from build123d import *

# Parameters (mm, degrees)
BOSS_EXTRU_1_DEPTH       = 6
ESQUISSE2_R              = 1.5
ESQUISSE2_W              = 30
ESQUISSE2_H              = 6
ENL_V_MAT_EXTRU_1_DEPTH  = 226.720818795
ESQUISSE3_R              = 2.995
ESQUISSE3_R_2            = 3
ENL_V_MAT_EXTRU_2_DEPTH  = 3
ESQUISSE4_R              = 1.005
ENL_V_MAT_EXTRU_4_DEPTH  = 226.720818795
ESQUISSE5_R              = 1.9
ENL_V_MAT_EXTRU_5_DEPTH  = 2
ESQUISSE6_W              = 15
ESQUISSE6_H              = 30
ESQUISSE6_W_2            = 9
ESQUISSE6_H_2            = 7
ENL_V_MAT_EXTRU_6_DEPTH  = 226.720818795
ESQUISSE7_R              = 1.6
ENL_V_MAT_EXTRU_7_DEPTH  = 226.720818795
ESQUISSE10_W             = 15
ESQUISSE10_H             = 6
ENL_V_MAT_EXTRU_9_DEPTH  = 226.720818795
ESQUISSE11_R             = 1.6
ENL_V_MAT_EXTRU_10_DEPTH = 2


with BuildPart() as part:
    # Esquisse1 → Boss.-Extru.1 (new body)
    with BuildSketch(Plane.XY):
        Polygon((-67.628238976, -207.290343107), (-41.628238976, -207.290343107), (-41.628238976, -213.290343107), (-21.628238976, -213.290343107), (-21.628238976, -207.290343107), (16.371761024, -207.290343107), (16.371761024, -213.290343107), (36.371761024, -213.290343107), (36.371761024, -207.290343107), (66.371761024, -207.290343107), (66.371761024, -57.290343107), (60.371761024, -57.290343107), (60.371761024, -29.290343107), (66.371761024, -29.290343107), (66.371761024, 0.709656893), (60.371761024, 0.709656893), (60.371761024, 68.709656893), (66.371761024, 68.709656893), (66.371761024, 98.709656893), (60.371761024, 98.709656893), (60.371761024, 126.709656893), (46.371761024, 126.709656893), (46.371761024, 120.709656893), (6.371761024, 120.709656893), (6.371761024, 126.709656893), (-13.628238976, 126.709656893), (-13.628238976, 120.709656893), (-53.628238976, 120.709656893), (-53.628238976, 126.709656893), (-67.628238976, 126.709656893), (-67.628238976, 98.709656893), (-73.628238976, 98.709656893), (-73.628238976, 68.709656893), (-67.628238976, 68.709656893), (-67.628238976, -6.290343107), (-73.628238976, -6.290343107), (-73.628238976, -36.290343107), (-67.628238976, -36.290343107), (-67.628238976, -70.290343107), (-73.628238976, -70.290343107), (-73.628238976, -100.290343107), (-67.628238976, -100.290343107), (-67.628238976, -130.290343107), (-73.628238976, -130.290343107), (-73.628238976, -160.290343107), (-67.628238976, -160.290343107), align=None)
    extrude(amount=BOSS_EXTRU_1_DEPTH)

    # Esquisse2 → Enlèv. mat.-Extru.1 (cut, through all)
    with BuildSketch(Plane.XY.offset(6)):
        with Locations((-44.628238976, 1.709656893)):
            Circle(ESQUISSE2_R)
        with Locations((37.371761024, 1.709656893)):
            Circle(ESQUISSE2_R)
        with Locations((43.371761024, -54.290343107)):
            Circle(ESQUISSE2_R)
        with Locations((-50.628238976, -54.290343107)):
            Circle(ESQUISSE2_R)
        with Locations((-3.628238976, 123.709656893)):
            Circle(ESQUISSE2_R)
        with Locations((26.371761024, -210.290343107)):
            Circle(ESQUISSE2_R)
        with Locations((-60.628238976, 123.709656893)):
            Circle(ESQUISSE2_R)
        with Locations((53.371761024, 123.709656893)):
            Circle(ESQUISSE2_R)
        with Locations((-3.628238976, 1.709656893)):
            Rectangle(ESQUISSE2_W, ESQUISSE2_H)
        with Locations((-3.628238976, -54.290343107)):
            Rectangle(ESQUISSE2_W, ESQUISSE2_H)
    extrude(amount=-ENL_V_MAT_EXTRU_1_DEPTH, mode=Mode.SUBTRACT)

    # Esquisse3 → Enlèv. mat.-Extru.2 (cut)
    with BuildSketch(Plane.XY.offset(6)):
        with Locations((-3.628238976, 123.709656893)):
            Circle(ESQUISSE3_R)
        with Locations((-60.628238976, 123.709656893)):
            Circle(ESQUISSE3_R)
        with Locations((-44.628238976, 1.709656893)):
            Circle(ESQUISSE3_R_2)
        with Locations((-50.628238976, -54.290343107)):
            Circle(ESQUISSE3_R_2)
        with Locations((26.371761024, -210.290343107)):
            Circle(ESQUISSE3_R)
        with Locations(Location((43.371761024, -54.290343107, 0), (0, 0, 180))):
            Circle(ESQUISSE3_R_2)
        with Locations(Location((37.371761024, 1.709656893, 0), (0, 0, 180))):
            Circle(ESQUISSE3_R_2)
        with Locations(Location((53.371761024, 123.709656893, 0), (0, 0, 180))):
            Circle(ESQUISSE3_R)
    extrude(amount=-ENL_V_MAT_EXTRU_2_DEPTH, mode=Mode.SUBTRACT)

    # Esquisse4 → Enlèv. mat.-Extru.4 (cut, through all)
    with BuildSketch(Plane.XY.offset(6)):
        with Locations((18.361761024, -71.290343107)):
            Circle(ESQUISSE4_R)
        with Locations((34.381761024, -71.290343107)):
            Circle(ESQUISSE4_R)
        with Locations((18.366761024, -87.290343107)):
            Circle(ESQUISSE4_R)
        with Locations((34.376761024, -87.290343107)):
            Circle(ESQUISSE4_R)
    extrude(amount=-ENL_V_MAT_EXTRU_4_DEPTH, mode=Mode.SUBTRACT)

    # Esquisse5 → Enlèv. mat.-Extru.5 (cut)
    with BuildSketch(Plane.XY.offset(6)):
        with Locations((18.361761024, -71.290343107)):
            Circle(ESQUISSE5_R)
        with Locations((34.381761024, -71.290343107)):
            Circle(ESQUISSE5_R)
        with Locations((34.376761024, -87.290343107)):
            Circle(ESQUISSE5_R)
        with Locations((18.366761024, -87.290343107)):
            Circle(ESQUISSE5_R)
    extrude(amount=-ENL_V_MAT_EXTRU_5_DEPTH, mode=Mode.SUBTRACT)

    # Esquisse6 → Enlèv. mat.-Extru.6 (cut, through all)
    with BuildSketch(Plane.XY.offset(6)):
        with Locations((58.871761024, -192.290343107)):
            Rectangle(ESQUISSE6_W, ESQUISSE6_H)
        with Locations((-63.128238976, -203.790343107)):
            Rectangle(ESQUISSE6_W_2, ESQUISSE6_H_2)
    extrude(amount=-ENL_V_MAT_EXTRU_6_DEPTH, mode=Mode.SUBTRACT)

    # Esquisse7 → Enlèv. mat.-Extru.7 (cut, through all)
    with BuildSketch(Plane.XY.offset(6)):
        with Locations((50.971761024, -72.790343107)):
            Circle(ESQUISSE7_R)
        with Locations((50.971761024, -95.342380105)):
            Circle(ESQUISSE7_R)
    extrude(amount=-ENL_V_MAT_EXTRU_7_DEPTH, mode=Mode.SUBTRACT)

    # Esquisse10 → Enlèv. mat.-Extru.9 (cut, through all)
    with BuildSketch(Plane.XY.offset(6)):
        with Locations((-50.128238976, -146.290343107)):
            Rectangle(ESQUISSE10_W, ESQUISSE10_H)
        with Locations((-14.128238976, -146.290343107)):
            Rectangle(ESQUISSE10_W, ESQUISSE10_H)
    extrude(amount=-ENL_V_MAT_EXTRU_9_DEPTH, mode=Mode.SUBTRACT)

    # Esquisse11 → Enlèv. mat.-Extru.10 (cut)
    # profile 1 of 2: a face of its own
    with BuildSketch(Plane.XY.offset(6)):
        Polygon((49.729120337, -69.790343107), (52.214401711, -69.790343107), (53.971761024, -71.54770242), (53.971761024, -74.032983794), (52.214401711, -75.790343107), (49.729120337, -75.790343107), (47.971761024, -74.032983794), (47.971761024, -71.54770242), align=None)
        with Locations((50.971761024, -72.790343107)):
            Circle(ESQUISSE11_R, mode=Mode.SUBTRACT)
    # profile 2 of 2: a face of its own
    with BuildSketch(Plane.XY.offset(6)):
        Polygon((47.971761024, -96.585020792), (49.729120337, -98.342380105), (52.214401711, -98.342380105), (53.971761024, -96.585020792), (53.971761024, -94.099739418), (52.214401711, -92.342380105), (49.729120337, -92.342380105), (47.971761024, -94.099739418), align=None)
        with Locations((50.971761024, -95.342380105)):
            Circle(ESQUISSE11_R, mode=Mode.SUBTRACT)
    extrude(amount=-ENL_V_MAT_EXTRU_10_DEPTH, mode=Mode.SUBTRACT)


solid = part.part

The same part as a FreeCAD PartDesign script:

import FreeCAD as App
import Part
import Sketcher

V = App.Vector
Q = App.Units.Quantity

doc = App.newDocument("Part")
body = doc.addObject("PartDesign::Body", "Body")

# Sketch on XY plane
sketch1 = doc.addObject("Sketcher::SketchObject", "Sketch")
body.addObject(sketch1)
sketch1.AttachmentSupport = (doc.XY_Plane, [""])
sketch1.MapMode = "FlatFace"
sketch1.addGeometry([
    Part.LineSegment(V(-68, -207, 0), V(-42, -207, 0)),  # 0
    Part.LineSegment(V(-42, -207, 0), V(-42, -213, 0)),  # 1
    Part.LineSegment(V(-42, -213, 0), V(-22, -213, 0)),  # 2
    Part.LineSegment(V(-22, -213, 0), V(-22, -207, 0)),  # 3
    Part.LineSegment(V(-22, -207, 0), V(16, -207, 0)),  # 4
    Part.LineSegment(V(16, -207, 0), V(16, -213, 0)),  # 5
    Part.LineSegment(V(16, -213, 0), V(36, -213, 0)),  # 6
    Part.LineSegment(V(36, -213, 0), V(36, -207, 0)),  # 7
    Part.LineSegment(V(36, -207, 0), V(66, -207, 0)),  # 8
    Part.LineSegment(V(66, -207, 0), V(66, -57, 0)),  # 9
    Part.LineSegment(V(66, -57, 0), V(60, -57, 0)),  # 10
    Part.LineSegment(V(60, -57, 0), V(60, -29, 0)),  # 11
    Part.LineSegment(V(60, -29, 0), V(66, -29, 0)),  # 12
    Part.LineSegment(V(66, -29, 0), V(66, 1, 0)),  # 13
    Part.LineSegment(V(66, 1, 0), V(60, 1, 0)),  # 14
    Part.LineSegment(V(60, 1, 0), V(60, 69, 0)),  # 15
    Part.LineSegment(V(60, 69, 0), V(66, 69, 0)),  # 16
    Part.LineSegment(V(66, 69, 0), V(66, 99, 0)),  # 17
    Part.LineSegment(V(66, 99, 0), V(60, 99, 0)),  # 18
    Part.LineSegment(V(60, 99, 0), V(60, 127, 0)),  # 19
    Part.LineSegment(V(60, 127, 0), V(46, 127, 0)),  # 20
    Part.LineSegment(V(46, 127, 0), V(46, 121, 0)),  # 21
    Part.LineSegment(V(46, 121, 0), V(6, 121, 0)),  # 22
    Part.LineSegment(V(6, 121, 0), V(6, 127, 0)),  # 23
    Part.LineSegment(V(6, 127, 0), V(-14, 127, 0)),  # 24
    Part.LineSegment(V(-14, 127, 0), V(-14, 121, 0)),  # 25
    Part.LineSegment(V(-14, 121, 0), V(-54, 121, 0)),  # 26
    Part.LineSegment(V(-54, 121, 0), V(-54, 127, 0)),  # 27
    Part.LineSegment(V(-54, 127, 0), V(-68, 127, 0)),  # 28
    Part.LineSegment(V(-68, 127, 0), V(-68, 99, 0)),  # 29
    Part.LineSegment(V(-68, 99, 0), V(-74, 99, 0)),  # 30
    Part.LineSegment(V(-74, 99, 0), V(-74, 69, 0)),  # 31
    Part.LineSegment(V(-74, 69, 0), V(-68, 69, 0)),  # 32
    Part.LineSegment(V(-68, 69, 0), V(-68, -6, 0)),  # 33
    Part.LineSegment(V(-68, -6, 0), V(-74, -6, 0)),  # 34
    Part.LineSegment(V(-74, -6, 0), V(-74, -36, 0)),  # 35
    Part.LineSegment(V(-74, -36, 0), V(-68, -36, 0)),  # 36
    Part.LineSegment(V(-68, -36, 0), V(-68, -70, 0)),  # 37
    Part.LineSegment(V(-68, -70, 0), V(-74, -70, 0)),  # 38
    Part.LineSegment(V(-74, -70, 0), V(-74, -100, 0)),  # 39
    Part.LineSegment(V(-74, -100, 0), V(-68, -100, 0)),  # 40
    Part.LineSegment(V(-68, -100, 0), V(-68, -130, 0)),  # 41
    Part.LineSegment(V(-68, -130, 0), V(-74, -130, 0)),  # 42
    Part.LineSegment(V(-74, -130, 0), V(-74, -160, 0)),  # 43
    Part.LineSegment(V(-74, -160, 0), V(-68, -160, 0)),  # 44
    Part.LineSegment(V(-68, -160, 0), V(-68, -207, 0)),  # 45
], False)
sketch1.addConstraint([
    Sketcher.Constraint("Coincident", 0, 2, 1, 1),
    Sketcher.Constraint("Coincident", 1, 2, 2, 1),
    Sketcher.Constraint("Coincident", 2, 2, 3, 1),
    Sketcher.Constraint("Coincident", 3, 2, 4, 1),
    Sketcher.Constraint("Coincident", 4, 2, 5, 1),
    Sketcher.Constraint("Coincident", 5, 2, 6, 1),
    Sketcher.Constraint("Coincident", 6, 2, 7, 1),
    Sketcher.Constraint("Coincident", 7, 2, 8, 1),
    Sketcher.Constraint("Coincident", 8, 2, 9, 1),
    Sketcher.Constraint("Coincident", 9, 2, 10, 1),
    Sketcher.Constraint("Coincident", 10, 2, 11, 1),
    Sketcher.Constraint("Coincident", 11, 2, 12, 1),
    Sketcher.Constraint("Coincident", 12, 2, 13, 1),
    Sketcher.Constraint("Coincident", 13, 2, 14, 1),
    Sketcher.Constraint("Coincident", 14, 2, 15, 1),
    Sketcher.Constraint("Coincident", 15, 2, 16, 1),
    Sketcher.Constraint("Coincident", 16, 2, 17, 1),
    Sketcher.Constraint("Coincident", 17, 2, 18, 1),
    Sketcher.Constraint("Coincident", 18, 2, 19, 1),
    Sketcher.Constraint("Coincident", 19, 2, 20, 1),
    Sketcher.Constraint("Coincident", 20, 2, 21, 1),
    Sketcher.Constraint("Coincident", 21, 2, 22, 1),
    Sketcher.Constraint("Coincident", 22, 2, 23, 1),
    Sketcher.Constraint("Coincident", 23, 2, 24, 1),
    Sketcher.Constraint("Coincident", 24, 2, 25, 1),
    Sketcher.Constraint("Coincident", 25, 2, 26, 1),
    Sketcher.Constraint("Coincident", 26, 2, 27, 1),
    Sketcher.Constraint("Coincident", 27, 2, 28, 1),
    Sketcher.Constraint("Coincident", 28, 2, 29, 1),
    Sketcher.Constraint("Coincident", 29, 2, 30, 1),
    Sketcher.Constraint("Coincident", 30, 2, 31, 1),
    Sketcher.Constraint("Coincident", 31, 2, 32, 1),
    Sketcher.Constraint("Coincident", 32, 2, 33, 1),
    Sketcher.Constraint("Coincident", 33, 2, 34, 1),
    Sketcher.Constraint("Coincident", 34, 2, 35, 1),
    Sketcher.Constraint("Coincident", 35, 2, 36, 1),
    Sketcher.Constraint("Coincident", 36, 2, 37, 1),
    Sketcher.Constraint("Coincident", 37, 2, 38, 1),
    Sketcher.Constraint("Coincident", 38, 2, 39, 1),
    Sketcher.Constraint("Coincident", 39, 2, 40, 1),
    Sketcher.Constraint("Coincident", 40, 2, 41, 1),
    Sketcher.Constraint("Coincident", 41, 2, 42, 1),
    Sketcher.Constraint("Coincident", 42, 2, 43, 1),
    Sketcher.Constraint("Coincident", 43, 2, 44, 1),
    Sketcher.Constraint("Coincident", 44, 2, 45, 1),
    Sketcher.Constraint("Coincident", 45, 2, 0, 1),
    Sketcher.Constraint("Horizontal", 0),
    Sketcher.Constraint("Vertical", 1),
    Sketcher.Constraint("Horizontal", 2),
    Sketcher.Constraint("Vertical", 3),
    Sketcher.Constraint("Horizontal", 4),
    Sketcher.Constraint("Vertical", 5),
    Sketcher.Constraint("Horizontal", 6),
    Sketcher.Constraint("Vertical", 7),
    Sketcher.Constraint("Horizontal", 8),
    Sketcher.Constraint("Vertical", 9),
    Sketcher.Constraint("Horizontal", 10),
    Sketcher.Constraint("Vertical", 11),
    Sketcher.Constraint("Horizontal", 12),
    Sketcher.Constraint("Vertical", 13),
    Sketcher.Constraint("Horizontal", 14),
    Sketcher.Constraint("Vertical", 15),
    Sketcher.Constraint("Horizontal", 16),
    Sketcher.Constraint("Vertical", 17),
    Sketcher.Constraint("Horizontal", 18),
    Sketcher.Constraint("Vertical", 19),
    Sketcher.Constraint("Horizontal", 20),
    Sketcher.Constraint("Vertical", 21),
    Sketcher.Constraint("Horizontal", 22),
    Sketcher.Constraint("Vertical", 23),
    Sketcher.Constraint("Horizontal", 24),
    Sketcher.Constraint("Vertical", 25),
    Sketcher.Constraint("Horizontal", 26),
    Sketcher.Constraint("Vertical", 27),
    Sketcher.Constraint("Horizontal", 28),
    Sketcher.Constraint("Vertical", 29),
    Sketcher.Constraint("Horizontal", 30),
    Sketcher.Constraint("Vertical", 31),
    Sketcher.Constraint("Horizontal", 32),
    Sketcher.Constraint("Vertical", 33),
    Sketcher.Constraint("Horizontal", 34),
    Sketcher.Constraint("Vertical", 35),
    Sketcher.Constraint("Horizontal", 36),
    Sketcher.Constraint("Vertical", 37),
    Sketcher.Constraint("Horizontal", 38),
    Sketcher.Constraint("Vertical", 39),
    Sketcher.Constraint("Horizontal", 40),
    Sketcher.Constraint("Vertical", 41),
    Sketcher.Constraint("Horizontal", 42),
    Sketcher.Constraint("Vertical", 43),
    Sketcher.Constraint("Horizontal", 44),
    Sketcher.Constraint("Vertical", 45),
    Sketcher.Constraint("Horizontal", 0, 2, 3, 2),
    Sketcher.Constraint("Horizontal", 2, 2, 5, 2),
    Sketcher.Constraint("Horizontal", 4, 2, 7, 2),
    Sketcher.Constraint("Horizontal", 20, 2, 23, 2),
    Sketcher.Constraint("Horizontal", 22, 2, 25, 2),
    Sketcher.Constraint("Horizontal", 24, 2, 27, 2),
    Sketcher.Constraint("Horizontal", 18, 2, 29, 2),
    Sketcher.Constraint("Horizontal", 16, 2, 31, 2),
    Sketcher.Constraint("Vertical", 9, 2, 12, 2),
    Sketcher.Constraint("Vertical", 11, 2, 14, 2),
    Sketcher.Constraint("Vertical", 13, 2, 16, 2),
    Sketcher.Constraint("Vertical", 15, 2, 18, 2),
    Sketcher.Constraint("Vertical", 29, 2, 32, 2),
    Sketcher.Constraint("Vertical", 31, 2, 34, 2),
    Sketcher.Constraint("Vertical", 33, 2, 36, 2),
    Sketcher.Constraint("Vertical", 35, 2, 38, 2),
    Sketcher.Constraint("Vertical", 37, 2, 40, 2),
    Sketcher.Constraint("Vertical", 39, 2, 42, 2),
    Sketcher.Constraint("Vertical", 41, 2, 44, 2),
    Sketcher.Constraint("Equal", 2, 6),
    Sketcher.Constraint("Equal", 6, 24),
    Sketcher.Constraint("Equal", 22, 26),
    Sketcher.Constraint("Equal", 20, 28),
    Sketcher.Constraint("Equal", 18, 30),
    Sketcher.Constraint("Equal", 44, 1),
    Sketcher.Constraint("Equal", 8, 13),
    Sketcher.Constraint("Equal", 13, 17),
    Sketcher.Constraint("Equal", 11, 19),
    Sketcher.Constraint("Equal", 7, 21),
    Sketcher.Constraint("Equal", 31, 35),
    Sketcher.Constraint("Equal", 35, 39),
    Sketcher.Constraint("Equal", 39, 41),
    Sketcher.Constraint("Equal", 41, 43),
    Sketcher.Constraint("DistanceX", 0, 1, 0, 2, Q("26 mm")),
    Sketcher.Constraint("DistanceX", 2, 1, 2, 2, Q("20 mm")),
    Sketcher.Constraint("DistanceX", 4, 1, 4, 2, Q("38 mm")),
    Sketcher.Constraint("DistanceX", 8, 1, 8, 2, Q("30 mm")),
    Sketcher.Constraint("DistanceX", 10, 2, 10, 1, Q("6 mm")),
    Sketcher.Constraint("DistanceX", 20, 2, 20, 1, Q("14 mm")),
    Sketcher.Constraint("DistanceY", 9, 1, 9, 2, Q("150 mm")),
    Sketcher.Constraint("DistanceY", 11, 1, 11, 2, Q("28 mm")),
    Sketcher.Constraint("DistanceY", 15, 1, 15, 2, Q("68 mm")),
    Sketcher.Constraint("DistanceY", 33, 2, 33, 1, Q("75 mm")),
    Sketcher.Constraint("DistanceY", 37, 2, 37, 1, Q("34 mm")),
    Sketcher.Constraint("DistanceX", 0, 2, -1, 1, Q("41.628239 mm")),
    Sketcher.Constraint("DistanceY", 0, 2, -1, 1, Q("207.290343 mm")),
])
pad1 = doc.addObject("PartDesign::Pad", "Pad")
body.addObject(pad1)
pad1.Profile = sketch1
pad1.Length = 6

# Sketch on XY plane
sketch2 = doc.addObject("Sketcher::SketchObject", "Sketch001")
body.addObject(sketch2)
sketch2.AttachmentSupport = (doc.XY_Plane, [""])
sketch2.MapMode = "FlatFace"
sketch2.AttachmentOffset = App.Placement(V(0, 0, 6), App.Rotation())
sketch2.addGeometry([
    Part.Circle(V(-44.6, 1.7, 0), V(0, 0, 1), 1.5),  # 0
    Part.Circle(V(37.4, 1.7, 0), V(0, 0, 1), 1.5),  # 1
    Part.Circle(V(43.4, -54.3, 0), V(0, 0, 1), 1.5),  # 2
    Part.Circle(V(-50.6, -54.3, 0), V(0, 0, 1), 1.5),  # 3
    Part.Circle(V(-3.6, 123.7, 0), V(0, 0, 1), 1.5),  # 4
    Part.Circle(V(26.4, -210.3, 0), V(0, 0, 1), 1.5),  # 5
    Part.Circle(V(-60.6, 123.7, 0), V(0, 0, 1), 1.5),  # 6
    Part.Circle(V(53.4, 123.7, 0), V(0, 0, 1), 1.5),  # 7
    Part.LineSegment(V(-18.6, 4.7, 0), V(-18.6, -1.3, 0)),  # 8
    Part.LineSegment(V(-18.6, -1.3, 0), V(11.4, -1.3, 0)),  # 9
    Part.LineSegment(V(11.4, -1.3, 0), V(11.4, 4.7, 0)),  # 10
    Part.LineSegment(V(11.4, 4.7, 0), V(-18.6, 4.7, 0)),  # 11
    Part.LineSegment(V(-18.6, -51.3, 0), V(-18.6, -57.3, 0)),  # 12
    Part.LineSegment(V(-18.6, -57.3, 0), V(11.4, -57.3, 0)),  # 13
    Part.LineSegment(V(11.4, -57.3, 0), V(11.4, -51.3, 0)),  # 14
    Part.LineSegment(V(11.4, -51.3, 0), V(-18.6, -51.3, 0)),  # 15
], False)
sketch2.addConstraint([
    Sketcher.Constraint("Coincident", 8, 2, 9, 1),
    Sketcher.Constraint("Coincident", 9, 2, 10, 1),
    Sketcher.Constraint("Coincident", 10, 2, 11, 1),
    Sketcher.Constraint("Coincident", 11, 2, 8, 1),
    Sketcher.Constraint("Coincident", 12, 2, 13, 1),
    Sketcher.Constraint("Coincident", 13, 2, 14, 1),
    Sketcher.Constraint("Coincident", 14, 2, 15, 1),
    Sketcher.Constraint("Coincident", 15, 2, 12, 1),
    Sketcher.Constraint("Vertical", 8),
    Sketcher.Constraint("Horizontal", 9),
    Sketcher.Constraint("Vertical", 10),
    Sketcher.Constraint("Horizontal", 11),
    Sketcher.Constraint("Vertical", 12),
    Sketcher.Constraint("Horizontal", 13),
    Sketcher.Constraint("Vertical", 14),
    Sketcher.Constraint("Horizontal", 15),
    Sketcher.Constraint("Equal", 0, 1),
    Sketcher.Constraint("Equal", 1, 2),
    Sketcher.Constraint("Equal", 2, 3),
    Sketcher.Constraint("Equal", 3, 4),
    Sketcher.Constraint("Equal", 4, 5),
    Sketcher.Constraint("Equal", 5, 6),
    Sketcher.Constraint("Equal", 6, 7),
    Sketcher.Constraint("Horizontal", 0, 3, 1, 3),
    Sketcher.Constraint("Horizontal", 2, 3, 3, 3),
    Sketcher.Constraint("Horizontal", 4, 3, 6, 3),
    Sketcher.Constraint("Horizontal", 6, 3, 7, 3),
    Sketcher.Constraint("Vertical", 11, 2, 12, 2),
    Sketcher.Constraint("Vertical", 10, 2, 13, 2),
    Sketcher.Constraint("Equal", 10, 12),
    Sketcher.Constraint("Diameter", 0, Q("3 mm")),
    Sketcher.Constraint("DistanceX", 9, 1, 9, 2, Q("30 mm")),
    Sketcher.Constraint("DistanceY", 8, 2, 8, 1, Q("6 mm")),
    Sketcher.Constraint("DistanceX", 0, 3, 1, 3, Q("82 mm")),
    Sketcher.Constraint("DistanceX", 1, 3, 2, 3, Q("6 mm")),
    Sketcher.Constraint("DistanceY", 2, 3, 1, 3, Q("56 mm")),
    Sketcher.Constraint("DistanceX", 3, 3, 0, 3, Q("6 mm")),
    Sketcher.Constraint("DistanceX", 0, 3, 4, 3, Q("41 mm")),
    Sketcher.Constraint("DistanceY", 0, 3, 4, 3, Q("122 mm")),
    Sketcher.Constraint("DistanceX", 5, 3, 2, 3, Q("17 mm")),
    Sketcher.Constraint("DistanceY", 5, 3, 2, 3, Q("156 mm")),
    Sketcher.Constraint("DistanceX", 6, 3, 4, 3, Q("57 mm")),
    Sketcher.Constraint("DistanceX", 4, 3, 7, 3, Q("57 mm")),
    Sketcher.Constraint("DistanceX", 0, 3, 8, 2, Q("26 mm")),
    Sketcher.Constraint("DistanceY", 8, 2, 0, 3, Q("3 mm")),
    Sketcher.Constraint("DistanceY", 12, 2, 3, 3, Q("3 mm")),
    Sketcher.Constraint("DistanceX", 0, 3, -1, 1, Q("44.628239 mm")),
    Sketcher.Constraint("DistanceY", -1, 1, 0, 3, Q("1.709657 mm")),
])
pocket1 = doc.addObject("PartDesign::Pocket", "Pocket")
body.addObject(pocket1)
pocket1.Profile = sketch2
pocket1.Type = "ThroughAll"

# Sketch on XY plane
sketch3 = doc.addObject("Sketcher::SketchObject", "Sketch002")
body.addObject(sketch3)
sketch3.AttachmentSupport = (doc.XY_Plane, [""])
sketch3.MapMode = "FlatFace"
sketch3.AttachmentOffset = App.Placement(V(0, 0, 6), App.Rotation())
sketch3.addGeometry([
    Part.Circle(V(-3.6, 123.7, 0), V(0, 0, 1), 3),  # 0
    Part.Circle(V(-60.6, 123.7, 0), V(0, 0, 1), 3),  # 1
    Part.Circle(V(-44.6, 1.7, 0), V(0, 0, 1), 3),  # 2
    Part.Circle(V(-50.6, -54.3, 0), V(0, 0, 1), 3),  # 3
    Part.Circle(V(26.4, -210.3, 0), V(0, 0, 1), 3),  # 4
    Part.Circle(V(43.4, -54.3, 0), V(0, 0, 1), 3),  # 5
    Part.Circle(V(37.4, 1.7, 0), V(0, 0, 1), 3),  # 6
    Part.Circle(V(53.4, 123.7, 0), V(0, 0, 1), 3),  # 7
], False)
sketch3.addConstraint([
    Sketcher.Constraint("Equal", 0, 1),
    Sketcher.Constraint("Equal", 2, 3),
    Sketcher.Constraint("Equal", 1, 4),
    Sketcher.Constraint("Equal", 3, 5),
    Sketcher.Constraint("Equal", 5, 6),
    Sketcher.Constraint("Equal", 4, 7),
    Sketcher.Constraint("Horizontal", 0, 3, 1, 3),
    Sketcher.Constraint("Horizontal", 3, 3, 5, 3),
    Sketcher.Constraint("Horizontal", 2, 3, 6, 3),
    Sketcher.Constraint("Horizontal", 1, 3, 7, 3),
    Sketcher.Constraint("Diameter", 2, Q("6 mm")),
    Sketcher.Constraint("Diameter", 0, Q("5.99 mm")),
    Sketcher.Constraint("DistanceX", 1, 3, 0, 3, Q("57 mm")),
    Sketcher.Constraint("DistanceX", 1, 3, 2, 3, Q("16 mm")),
    Sketcher.Constraint("DistanceY", 2, 3, 1, 3, Q("122 mm")),
    Sketcher.Constraint("DistanceX", 3, 3, 2, 3, Q("6 mm")),
    Sketcher.Constraint("DistanceY", 3, 3, 2, 3, Q("56 mm")),
    Sketcher.Constraint("DistanceX", 3, 3, 4, 3, Q("77 mm")),
    Sketcher.Constraint("DistanceY", 4, 3, 3, 3, Q("156 mm")),
    Sketcher.Constraint("DistanceX", 3, 3, 5, 3, Q("94 mm")),
    Sketcher.Constraint("DistanceX", 6, 3, 5, 3, Q("6 mm")),
    Sketcher.Constraint("DistanceX", 0, 3, 7, 3, Q("57 mm")),
    Sketcher.Constraint("DistanceX", 0, 3, -1, 1, Q("3.628239 mm")),
    Sketcher.Constraint("DistanceY", -1, 1, 0, 3, Q("123.709657 mm")),
])
pocket2 = doc.addObject("PartDesign::Pocket", "Pocket001")
body.addObject(pocket2)
pocket2.Profile = sketch3
pocket2.Length = 3

# Sketch on XY plane
sketch4 = doc.addObject("Sketcher::SketchObject", "Sketch003")
body.addObject(sketch4)
sketch4.AttachmentSupport = (doc.XY_Plane, [""])
sketch4.MapMode = "FlatFace"
sketch4.AttachmentOffset = App.Placement(V(0, 0, 6), App.Rotation())
sketch4.addGeometry([
    Part.Circle(V(18.4, -71.3, 0), V(0, 0, 1), 1),
    Part.Circle(V(34.4, -71.3, 0), V(0, 0, 1), 1),
    Part.Circle(V(18.4, -87.3, 0), V(0, 0, 1), 1),
    Part.Circle(V(34.4, -87.3, 0), V(0, 0, 1), 1),
], False)
sketch4.addConstraint([
    Sketcher.Constraint("Equal", 0, 1),
    Sketcher.Constraint("Equal", 1, 2),
    Sketcher.Constraint("Equal", 2, 3),
    Sketcher.Constraint("Horizontal", 0, 3, 1, 3),
    Sketcher.Constraint("Horizontal", 2, 3, 3, 3),
    Sketcher.Constraint("Diameter", 0, Q("2.01 mm")),
    Sketcher.Constraint("DistanceY", 2, 3, 0, 3, Q("16 mm")),
    Sketcher.Constraint("DistanceX", 0, 3, 1, 3, Q("16.02 mm")),
    Sketcher.Constraint("DistanceX", 2, 3, 3, 3, Q("16.01 mm")),
    Sketcher.Constraint("DistanceX", 0, 3, 2, 3, Q("0.005 mm")),
    Sketcher.Constraint("DistanceX", -1, 1, 0, 3, Q("18.361761 mm")),
    Sketcher.Constraint("DistanceY", 0, 3, -1, 1, Q("71.290343 mm")),
])
pocket3 = doc.addObject("PartDesign::Pocket", "Pocket002")
body.addObject(pocket3)
pocket3.Profile = sketch4
pocket3.Type = "ThroughAll"

# Sketch on XY plane
sketch5 = doc.addObject("Sketcher::SketchObject", "Sketch004")
body.addObject(sketch5)
sketch5.AttachmentSupport = (doc.XY_Plane, [""])
sketch5.MapMode = "FlatFace"
sketch5.AttachmentOffset = App.Placement(V(0, 0, 6), App.Rotation())
sketch5.addGeometry([
    Part.Circle(V(18.4, -71.3, 0), V(0, 0, 1), 1.9),
    Part.Circle(V(34.4, -71.3, 0), V(0, 0, 1), 1.9),
    Part.Circle(V(34.4, -87.3, 0), V(0, 0, 1), 1.9),
    Part.Circle(V(18.4, -87.3, 0), V(0, 0, 1), 1.9),
], False)
sketch5.addConstraint([
    Sketcher.Constraint("Equal", 0, 1),
    Sketcher.Constraint("Equal", 1, 2),
    Sketcher.Constraint("Equal", 2, 3),
    Sketcher.Constraint("Horizontal", 0, 3, 1, 3),
    Sketcher.Constraint("Horizontal", 2, 3, 3, 3),
    Sketcher.Constraint("Diameter", 0, Q("3.8 mm")),
    Sketcher.Constraint("DistanceY", 2, 3, 1, 3, Q("16 mm")),
    Sketcher.Constraint("DistanceX", 0, 3, 1, 3, Q("16.02 mm")),
    Sketcher.Constraint("DistanceX", 3, 3, 2, 3, Q("16.01 mm")),
    Sketcher.Constraint("DistanceX", 2, 3, 1, 3, Q("0.005 mm")),
    Sketcher.Constraint("DistanceX", -1, 1, 0, 3, Q("18.361761 mm")),
    Sketcher.Constraint("DistanceY", 0, 3, -1, 1, Q("71.290343 mm")),
])
pocket4 = doc.addObject("PartDesign::Pocket", "Pocket003")
body.addObject(pocket4)
pocket4.Profile = sketch5
pocket4.Length = 2

# Sketch on XY plane
sketch6 = doc.addObject("Sketcher::SketchObject", "Sketch005")
body.addObject(sketch6)
sketch6.AttachmentSupport = (doc.XY_Plane, [""])
sketch6.MapMode = "FlatFace"
sketch6.AttachmentOffset = App.Placement(V(0, 0, 6), App.Rotation())
sketch6.addGeometry([
    Part.LineSegment(V(51, -177, 0), V(51, -207, 0)),  # 0
    Part.LineSegment(V(51, -207, 0), V(66, -207, 0)),  # 1
    Part.LineSegment(V(66, -207, 0), V(66, -177, 0)),  # 2
    Part.LineSegment(V(66, -177, 0), V(51, -177, 0)),  # 3
    Part.LineSegment(V(-68, -200, 0), V(-68, -207, 0)),  # 4
    Part.LineSegment(V(-68, -207, 0), V(-59, -207, 0)),  # 5
    Part.LineSegment(V(-59, -207, 0), V(-59, -200, 0)),  # 6
    Part.LineSegment(V(-59, -200, 0), V(-68, -200, 0)),  # 7
], False)
sketch6.addConstraint([
    Sketcher.Constraint("Coincident", 0, 2, 1, 1),
    Sketcher.Constraint("Coincident", 1, 2, 2, 1),
    Sketcher.Constraint("Coincident", 2, 2, 3, 1),
    Sketcher.Constraint("Coincident", 3, 2, 0, 1),
    Sketcher.Constraint("Coincident", 4, 2, 5, 1),
    Sketcher.Constraint("Coincident", 5, 2, 6, 1),
    Sketcher.Constraint("Coincident", 6, 2, 7, 1),
    Sketcher.Constraint("Coincident", 7, 2, 4, 1),
    Sketcher.Constraint("Vertical", 0),
    Sketcher.Constraint("Horizontal", 1),
    Sketcher.Constraint("Vertical", 2),
    Sketcher.Constraint("Horizontal", 3),
    Sketcher.Constraint("Vertical", 4),
    Sketcher.Constraint("Horizontal", 5),
    Sketcher.Constraint("Vertical", 6),
    Sketcher.Constraint("Horizontal", 7),
    Sketcher.Constraint("Horizontal", 1, 2, 4, 2),
    Sketcher.Constraint("DistanceX", 1, 1, 1, 2, Q("15 mm")),
    Sketcher.Constraint("DistanceX", 5, 1, 5, 2, Q("9 mm")),
    Sketcher.Constraint("DistanceY", 0, 2, 0, 1, Q("30 mm")),
    Sketcher.Constraint("DistanceY", 4, 2, 4, 1, Q("7 mm")),
    Sketcher.Constraint("DistanceX", 4, 2, 0, 2, Q("119 mm")),
    Sketcher.Constraint("DistanceX", -1, 1, 0, 2, Q("51.371761 mm")),
    Sketcher.Constraint("DistanceY", 0, 2, -1, 1, Q("207.290343 mm")),
])
pocket5 = doc.addObject("PartDesign::Pocket", "Pocket004")
body.addObject(pocket5)
pocket5.Profile = sketch6
pocket5.Type = "ThroughAll"

# Sketch on XY plane
sketch7 = doc.addObject("Sketcher::SketchObject", "Sketch006")
body.addObject(sketch7)
sketch7.AttachmentSupport = (doc.XY_Plane, [""])
sketch7.MapMode = "FlatFace"
sketch7.AttachmentOffset = App.Placement(V(0, 0, 6), App.Rotation())
sketch7.addGeometry([
    Part.Circle(V(51, -72.8, 0), V(0, 0, 1), 1.6),
    Part.Circle(V(51, -95.3, 0), V(0, 0, 1), 1.6),
], False)
sketch7.addConstraint([
    Sketcher.Constraint("Equal", 0, 1),
    Sketcher.Constraint("Vertical", 0, 3, 1, 3),
    Sketcher.Constraint("Diameter", 0, Q("3.2 mm")),
    Sketcher.Constraint("DistanceX", -1, 1, 0, 3, Q("50.971761 mm")),
    Sketcher.Constraint("DistanceY", 1, 3, -1, 1, Q("95.34238 mm")),
    Sketcher.Constraint("DistanceY", 0, 3, -1, 1, Q("72.790343 mm")),
])
pocket6 = doc.addObject("PartDesign::Pocket", "Pocket005")
body.addObject(pocket6)
pocket6.Profile = sketch7
pocket6.Type = "ThroughAll"

# Sketch on XY plane
sketch8 = doc.addObject("Sketcher::SketchObject", "Sketch007")
body.addObject(sketch8)
sketch8.AttachmentSupport = (doc.XY_Plane, [""])
sketch8.MapMode = "FlatFace"
sketch8.AttachmentOffset = App.Placement(V(0, 0, 6), App.Rotation())
sketch8.addGeometry([
    Part.LineSegment(V(-58, -143, 0), V(-58, -149, 0)),  # 0
    Part.LineSegment(V(-58, -149, 0), V(-43, -149, 0)),  # 1
    Part.LineSegment(V(-43, -149, 0), V(-43, -143, 0)),  # 2
    Part.LineSegment(V(-43, -143, 0), V(-58, -143, 0)),  # 3
    Part.LineSegment(V(-22, -143, 0), V(-22, -149, 0)),  # 4
    Part.LineSegment(V(-22, -149, 0), V(-7, -149, 0)),  # 5
    Part.LineSegment(V(-7, -149, 0), V(-7, -143, 0)),  # 6
    Part.LineSegment(V(-7, -143, 0), V(-22, -143, 0)),  # 7
], False)
sketch8.addConstraint([
    Sketcher.Constraint("Coincident", 0, 2, 1, 1),
    Sketcher.Constraint("Coincident", 1, 2, 2, 1),
    Sketcher.Constraint("Coincident", 2, 2, 3, 1),
    Sketcher.Constraint("Coincident", 3, 2, 0, 1),
    Sketcher.Constraint("Coincident", 4, 2, 5, 1),
    Sketcher.Constraint("Coincident", 5, 2, 6, 1),
    Sketcher.Constraint("Coincident", 6, 2, 7, 1),
    Sketcher.Constraint("Coincident", 7, 2, 4, 1),
    Sketcher.Constraint("Vertical", 0),
    Sketcher.Constraint("Horizontal", 1),
    Sketcher.Constraint("Vertical", 2),
    Sketcher.Constraint("Horizontal", 3),
    Sketcher.Constraint("Vertical", 4),
    Sketcher.Constraint("Horizontal", 5),
    Sketcher.Constraint("Vertical", 6),
    Sketcher.Constraint("Horizontal", 7),
    Sketcher.Constraint("Horizontal", 1, 2, 4, 2),
    Sketcher.Constraint("Horizontal", 3, 2, 6, 2),
    Sketcher.Constraint("Equal", 3, 5),
    Sketcher.Constraint("DistanceX", 1, 1, 1, 2, Q("15 mm")),
    Sketcher.Constraint("DistanceY", 0, 2, 0, 1, Q("6 mm")),
    Sketcher.Constraint("DistanceX", 1, 2, 4, 2, Q("21 mm")),
    Sketcher.Constraint("DistanceX", 0, 2, -1, 1, Q("57.628239 mm")),
    Sketcher.Constraint("DistanceY", 0, 2, -1, 1, Q("149.290343 mm")),
])
pocket7 = doc.addObject("PartDesign::Pocket", "Pocket006")
body.addObject(pocket7)
pocket7.Profile = sketch8
pocket7.Type = "ThroughAll"

# Sketch on XY plane
sketch9 = doc.addObject("Sketcher::SketchObject", "Sketch008")
body.addObject(sketch9)
sketch9.AttachmentSupport = (doc.XY_Plane, [""])
sketch9.MapMode = "FlatFace"
sketch9.AttachmentOffset = App.Placement(V(0, 0, 6), App.Rotation())
sketch9.addGeometry([
    Part.LineSegment(V(52.2, -69.8, 0), V(49.7, -69.8, 0)),  # 0
    Part.LineSegment(V(49.7, -69.8, 0), V(48, -71.5, 0)),  # 1
    Part.LineSegment(V(48, -71.5, 0), V(48, -74, 0)),  # 2
    Part.LineSegment(V(48, -74, 0), V(49.7, -75.8, 0)),  # 3
    Part.LineSegment(V(49.7, -75.8, 0), V(52.2, -75.8, 0)),  # 4
    Part.LineSegment(V(52.2, -75.8, 0), V(54, -74, 0)),  # 5
    Part.LineSegment(V(54, -74, 0), V(54, -71.5, 0)),  # 6
    Part.LineSegment(V(54, -71.5, 0), V(52.2, -69.8, 0)),  # 7
    Part.Circle(V(51, -72.8, 0), V(0, 0, 1), 1.6),  # 8
    Part.LineSegment(V(48, -96.6, 0), V(49.7, -98.3, 0)),  # 9
    Part.LineSegment(V(49.7, -98.3, 0), V(52.2, -98.3, 0)),  # 10
    Part.LineSegment(V(52.2, -98.3, 0), V(54, -96.6, 0)),  # 11
    Part.LineSegment(V(54, -96.6, 0), V(54, -94.1, 0)),  # 12
    Part.LineSegment(V(54, -94.1, 0), V(52.2, -92.3, 0)),  # 13
    Part.LineSegment(V(52.2, -92.3, 0), V(49.7, -92.3, 0)),  # 14
    Part.LineSegment(V(49.7, -92.3, 0), V(48, -94.1, 0)),  # 15
    Part.LineSegment(V(48, -94.1, 0), V(48, -96.6, 0)),  # 16
    Part.Circle(V(51, -95.3, 0), V(0, 0, 1), 1.6),  # 17
], False)
sketch9.addConstraint([
    Sketcher.Constraint("Coincident", 0, 2, 1, 1),
    Sketcher.Constraint("Coincident", 1, 2, 2, 1),
    Sketcher.Constraint("Coincident", 2, 2, 3, 1),
    Sketcher.Constraint("Coincident", 3, 2, 4, 1),
    Sketcher.Constraint("Coincident", 4, 2, 5, 1),
    Sketcher.Constraint("Coincident", 5, 2, 6, 1),
    Sketcher.Constraint("Coincident", 6, 2, 7, 1),
    Sketcher.Constraint("Coincident", 7, 2, 0, 1),
    Sketcher.Constraint("Coincident", 9, 2, 10, 1),
    Sketcher.Constraint("Coincident", 10, 2, 11, 1),
    Sketcher.Constraint("Coincident", 11, 2, 12, 1),
    Sketcher.Constraint("Coincident", 12, 2, 13, 1),
    Sketcher.Constraint("Coincident", 13, 2, 14, 1),
    Sketcher.Constraint("Coincident", 14, 2, 15, 1),
    Sketcher.Constraint("Coincident", 15, 2, 16, 1),
    Sketcher.Constraint("Coincident", 16, 2, 9, 1),
    Sketcher.Constraint("Horizontal", 0),
    Sketcher.Constraint("Vertical", 2),
    Sketcher.Constraint("Horizontal", 4),
    Sketcher.Constraint("Vertical", 6),
    Sketcher.Constraint("Horizontal", 10),
    Sketcher.Constraint("Vertical", 12),
    Sketcher.Constraint("Horizontal", 14),
    Sketcher.Constraint("Vertical", 16),
    Sketcher.Constraint("Equal", 8, 17),
    Sketcher.Constraint("Perpendicular", 1, 3),
    Sketcher.Constraint("Perpendicular", 3, 5),
    Sketcher.Constraint("Perpendicular", 5, 7),
    Sketcher.Constraint("Parallel", 7, 9),
    Sketcher.Constraint("Perpendicular", 9, 11),
    Sketcher.Constraint("Perpendicular", 11, 13),
    Sketcher.Constraint("Perpendicular", 13, 15),
    Sketcher.Constraint("Horizontal", 2, 2, 5, 2),
    Sketcher.Constraint("Horizontal", 1, 2, 6, 2),
    Sketcher.Constraint("Horizontal", 12, 2, 15, 2),
    Sketcher.Constraint("Horizontal", 11, 2, 16, 2),
    Sketcher.Constraint("Vertical", 8, 3, 17, 3),
    Sketcher.Constraint("Vertical", 0, 2, 3, 2),
    Sketcher.Constraint("Vertical", 4, 2, 7, 2),
    Sketcher.Constraint("Vertical", 3, 2, 9, 2),
    Sketcher.Constraint("Vertical", 7, 2, 10, 2),
    Sketcher.Constraint("Vertical", 6, 2, 11, 2),
    Sketcher.Constraint("Vertical", 10, 2, 13, 2),
    Sketcher.Constraint("Equal", 14, 2),
    Sketcher.Constraint("Equal", 6, 12),
    Sketcher.Constraint("Diameter", 8, Q("3.2 mm")),
    Sketcher.Constraint("DistanceY", 8, 3, 0, 2, Q("3 mm")),
    Sketcher.Constraint("DistanceX", 1, 2, 8, 3, Q("3 mm")),
    Sketcher.Constraint("DistanceY", 3, 2, 8, 3, Q("3 mm")),
    Sketcher.Constraint("DistanceY", 9, 2, 17, 3, Q("3 mm")),
    Sketcher.Constraint("DistanceX", 0, 2, 0, 1, Q("2.485281 mm")),
    Sketcher.Constraint("DistanceX", -1, 1, 4, 2, Q("52.214402 mm")),
    Sketcher.Constraint("DistanceY", 17, 3, -1, 1, Q("95.34238 mm")),
    Sketcher.Constraint("DistanceY", 8, 3, -1, 1, Q("72.790343 mm")),
])
pocket8 = doc.addObject("PartDesign::Pocket", "Pocket007")
body.addObject(pocket8)
pocket8.Profile = sketch9
pocket8.Length = 2

doc.recompute()
